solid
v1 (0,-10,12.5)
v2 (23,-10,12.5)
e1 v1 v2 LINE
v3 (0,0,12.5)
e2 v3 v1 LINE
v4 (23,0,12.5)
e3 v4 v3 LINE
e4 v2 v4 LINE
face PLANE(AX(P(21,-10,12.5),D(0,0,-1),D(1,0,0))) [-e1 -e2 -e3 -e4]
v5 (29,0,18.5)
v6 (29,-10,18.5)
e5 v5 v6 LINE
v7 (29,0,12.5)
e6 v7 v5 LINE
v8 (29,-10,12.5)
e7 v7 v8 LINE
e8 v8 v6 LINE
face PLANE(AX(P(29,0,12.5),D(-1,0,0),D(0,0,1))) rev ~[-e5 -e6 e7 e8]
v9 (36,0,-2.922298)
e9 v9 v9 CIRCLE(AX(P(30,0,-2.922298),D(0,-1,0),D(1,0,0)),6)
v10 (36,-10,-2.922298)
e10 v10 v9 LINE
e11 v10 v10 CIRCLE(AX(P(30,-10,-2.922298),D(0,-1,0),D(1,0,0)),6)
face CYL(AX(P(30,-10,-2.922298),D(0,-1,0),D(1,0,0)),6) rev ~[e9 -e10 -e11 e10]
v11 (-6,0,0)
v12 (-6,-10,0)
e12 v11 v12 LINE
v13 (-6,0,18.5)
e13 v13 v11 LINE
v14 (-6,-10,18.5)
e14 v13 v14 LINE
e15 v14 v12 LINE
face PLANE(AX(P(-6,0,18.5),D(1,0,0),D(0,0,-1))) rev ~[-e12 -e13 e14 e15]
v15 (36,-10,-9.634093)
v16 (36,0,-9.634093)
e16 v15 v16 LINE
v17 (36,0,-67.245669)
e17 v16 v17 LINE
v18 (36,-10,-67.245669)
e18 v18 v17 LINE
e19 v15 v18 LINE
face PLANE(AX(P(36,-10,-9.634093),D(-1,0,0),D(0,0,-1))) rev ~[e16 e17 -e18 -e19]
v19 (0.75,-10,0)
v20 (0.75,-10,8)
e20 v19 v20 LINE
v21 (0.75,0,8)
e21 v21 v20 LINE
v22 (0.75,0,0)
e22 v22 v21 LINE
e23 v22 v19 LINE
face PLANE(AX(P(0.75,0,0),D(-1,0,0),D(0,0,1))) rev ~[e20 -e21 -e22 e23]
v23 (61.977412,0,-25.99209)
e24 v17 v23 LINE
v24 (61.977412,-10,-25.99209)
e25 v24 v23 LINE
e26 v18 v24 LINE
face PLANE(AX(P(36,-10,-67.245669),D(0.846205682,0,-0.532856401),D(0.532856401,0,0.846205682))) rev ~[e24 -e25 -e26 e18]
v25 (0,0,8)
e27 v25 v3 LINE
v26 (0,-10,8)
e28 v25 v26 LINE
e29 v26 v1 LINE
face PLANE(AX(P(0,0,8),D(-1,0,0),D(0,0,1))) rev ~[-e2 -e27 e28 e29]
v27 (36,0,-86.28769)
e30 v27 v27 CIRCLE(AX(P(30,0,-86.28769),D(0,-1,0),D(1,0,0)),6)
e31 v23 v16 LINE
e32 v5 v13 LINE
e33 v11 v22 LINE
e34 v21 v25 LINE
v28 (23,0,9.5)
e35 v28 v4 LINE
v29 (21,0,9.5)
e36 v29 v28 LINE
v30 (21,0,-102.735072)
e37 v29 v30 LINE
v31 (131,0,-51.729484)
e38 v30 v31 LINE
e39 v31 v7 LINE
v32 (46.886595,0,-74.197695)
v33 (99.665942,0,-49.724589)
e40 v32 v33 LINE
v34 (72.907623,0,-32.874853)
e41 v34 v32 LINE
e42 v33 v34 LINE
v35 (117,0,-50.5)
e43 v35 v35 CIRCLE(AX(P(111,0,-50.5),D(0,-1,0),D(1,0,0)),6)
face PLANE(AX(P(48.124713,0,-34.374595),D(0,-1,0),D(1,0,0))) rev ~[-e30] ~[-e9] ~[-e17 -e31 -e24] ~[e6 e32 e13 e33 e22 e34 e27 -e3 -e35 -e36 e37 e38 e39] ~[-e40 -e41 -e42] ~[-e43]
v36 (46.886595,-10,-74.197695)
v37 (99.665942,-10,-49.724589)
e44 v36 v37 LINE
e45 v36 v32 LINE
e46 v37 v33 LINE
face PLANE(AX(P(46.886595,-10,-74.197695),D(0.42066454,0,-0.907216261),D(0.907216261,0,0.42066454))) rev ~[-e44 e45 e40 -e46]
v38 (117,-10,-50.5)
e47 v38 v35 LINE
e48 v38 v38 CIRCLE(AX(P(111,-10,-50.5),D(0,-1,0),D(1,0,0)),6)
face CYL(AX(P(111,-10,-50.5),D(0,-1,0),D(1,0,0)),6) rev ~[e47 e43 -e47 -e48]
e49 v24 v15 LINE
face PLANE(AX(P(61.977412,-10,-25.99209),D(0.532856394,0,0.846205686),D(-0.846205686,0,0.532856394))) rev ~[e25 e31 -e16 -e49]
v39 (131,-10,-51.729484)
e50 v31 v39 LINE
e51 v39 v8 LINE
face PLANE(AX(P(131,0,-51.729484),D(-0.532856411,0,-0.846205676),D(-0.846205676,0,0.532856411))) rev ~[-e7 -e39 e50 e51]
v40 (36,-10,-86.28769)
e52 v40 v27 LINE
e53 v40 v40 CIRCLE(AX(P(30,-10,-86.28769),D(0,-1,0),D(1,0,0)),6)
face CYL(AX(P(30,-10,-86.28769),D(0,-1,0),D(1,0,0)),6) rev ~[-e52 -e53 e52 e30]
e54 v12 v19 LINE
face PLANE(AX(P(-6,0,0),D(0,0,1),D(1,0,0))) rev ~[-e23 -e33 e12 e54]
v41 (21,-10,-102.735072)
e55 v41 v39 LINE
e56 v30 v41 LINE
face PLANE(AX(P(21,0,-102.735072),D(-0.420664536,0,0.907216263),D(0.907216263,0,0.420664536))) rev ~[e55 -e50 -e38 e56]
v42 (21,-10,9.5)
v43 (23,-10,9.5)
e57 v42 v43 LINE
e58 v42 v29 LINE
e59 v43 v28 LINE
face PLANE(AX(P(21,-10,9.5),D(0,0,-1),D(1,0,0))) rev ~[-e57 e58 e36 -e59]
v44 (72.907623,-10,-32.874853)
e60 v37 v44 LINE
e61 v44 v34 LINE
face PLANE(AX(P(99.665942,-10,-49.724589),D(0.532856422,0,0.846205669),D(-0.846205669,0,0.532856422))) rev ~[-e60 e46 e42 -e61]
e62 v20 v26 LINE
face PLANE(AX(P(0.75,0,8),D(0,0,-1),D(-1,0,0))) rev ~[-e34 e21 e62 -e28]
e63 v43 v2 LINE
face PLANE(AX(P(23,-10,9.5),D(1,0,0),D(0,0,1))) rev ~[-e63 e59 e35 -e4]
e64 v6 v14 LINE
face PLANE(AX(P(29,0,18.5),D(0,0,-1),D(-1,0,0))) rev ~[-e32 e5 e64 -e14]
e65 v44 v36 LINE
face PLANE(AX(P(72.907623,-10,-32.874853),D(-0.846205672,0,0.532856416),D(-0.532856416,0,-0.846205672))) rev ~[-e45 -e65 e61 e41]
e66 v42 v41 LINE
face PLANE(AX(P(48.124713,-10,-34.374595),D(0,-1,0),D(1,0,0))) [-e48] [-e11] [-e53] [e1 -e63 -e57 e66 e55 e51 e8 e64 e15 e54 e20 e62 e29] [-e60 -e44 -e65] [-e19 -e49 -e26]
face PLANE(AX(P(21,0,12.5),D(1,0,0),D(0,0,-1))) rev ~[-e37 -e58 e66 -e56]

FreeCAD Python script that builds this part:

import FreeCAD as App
import Part
import Sketcher

V = App.Vector
Q = App.Units.Quantity


def add_polygon(sketch, points):
    """Adds a closed chain of lines whose ends are joined by coincident constraints."""
    first, n = sketch.GeometryCount, len(points)
    for a, b in zip(points, points[1:] + points[:1]):
        sketch.addGeometry(Part.LineSegment(App.Vector(*a, 0), App.Vector(*b, 0)), False)
    for i in range(n):
        sketch.addConstraint(Sketcher.Constraint("Coincident", first + i, 2, first + (i + 1) % n, 1))

doc = App.newDocument("Part")
params = doc.addObject("Spreadsheet::Sheet", "Params")
for row, (alias, value) in enumerate([
    ("sketch1_width", "21 mm"),
    ("sketch1_width2", "35 mm"),
    ("sketch1_height", "8 mm"),
    ("sketch1_height2", "6 mm"),
    ("sketch1_height3", "4.5 mm"),
    ("pad1_length", "10 mm"),
    ("pocket1_length", "25 mm"),
    ("sketch3_diameter", "12 mm"),
    ("pocket2_length", "25 mm"),
    ("sketch4_width", "2 mm"),
    ("sketch4_height", "3 mm"),
    ("pocket3_length", "25 mm"),
], start=1):
    params.set(f"A{row}", alias)
    params.set(f"B{row}", "=" + value)
    params.setAlias(f"B{row}", alias)

body = doc.addObject("PartDesign::Body", "Body")

sketch1 = doc.addObject("Sketcher::SketchObject", "Sketch")
body.addObject(sketch1)
sketch1.AttachmentSupport = (doc.XZ_Plane, [""])
sketch1.MapMode = "FlatFace"
add_polygon(sketch1, [(-6, 0), (0.75, 0), (0.75, 8), (0, 8), (0, 12.5), (21, 12.5), (21, -102.735072), (131, -51.729484), (29, 12.5), (29, 18.5), (-6, 18.5)])
sketch1.addConstraint([
    Sketcher.Constraint("Horizontal", 0),
    Sketcher.Constraint("Vertical", 1),
    Sketcher.Constraint("Horizontal", 2),
    Sketcher.Constraint("Vertical", 3),
    Sketcher.Constraint("Horizontal", 4),
    Sketcher.Constraint("Vertical", 5),
    Sketcher.Constraint("Vertical", 8),
    Sketcher.Constraint("Horizontal", 9),
    Sketcher.Constraint("Vertical", 10),
    Sketcher.Constraint("PointOnObject", 0, 2, -1),
    Sketcher.Constraint("PointOnObject", 2, 2, -2),
    Sketcher.Constraint("Horizontal", 4, 2, 7, 2),
    Sketcher.Constraint("DistanceX", 4, 1, 4, 2, Q("21 mm")),
    Sketcher.Constraint("DistanceX", 9, 2, 9, 1, Q("35 mm")),
    Sketcher.Constraint("DistanceY", 1, 1, 1, 2, Q("8 mm")),
    Sketcher.Constraint("DistanceY", 8, 1, 8, 2, Q("6 mm")),
    Sketcher.Constraint("DistanceY", 3, 1, 3, 2, Q("4.5 mm")),
    Sketcher.Constraint("DistanceX", -1, 1, 6, 2, Q("131 mm")),
    Sketcher.Constraint("DistanceX", -1, 1, 7, 2, Q("29 mm")),
    Sketcher.Constraint("DistanceX", 0, 1, 0, 2, Q("6.75 mm")),
    Sketcher.Constraint("Distance", 6, Q("121.250031 mm")),
    Sketcher.Constraint("Distance", 7, Q("120.538071 mm")),
])
sketch1.setExpression("Constraints[23]", "Params.sketch1_width")
sketch1.setExpression("Constraints[24]", "Params.sketch1_width2")
sketch1.setExpression("Constraints[25]", "Params.sketch1_height")
sketch1.setExpression("Constraints[26]", "Params.sketch1_height2")
sketch1.setExpression("Constraints[27]", "Params.sketch1_height3")
pad1 = doc.addObject("PartDesign::Pad", "Pad")
body.addObject(pad1)
pad1.Profile = sketch1
pad1.setExpression("Length", "Params.pad1_length")

sketch2 = doc.addObject("Sketcher::SketchObject", "Sketch001")
body.addObject(sketch2)
sketch2.AttachmentSupport = (doc.XZ_Plane, [""])
sketch2.MapMode = "FlatFace"
sketch2.AttachmentOffset = App.Placement(V(0, 0, 10), App.Rotation())
add_polygon(sketch2, [(61.977412, -25.99209), (36, -9.634093), (36, -67.245669)])
add_polygon(sketch2, [(99.665942, -49.724589), (72.907623, -32.874853), (46.886595, -74.197695)])
sketch2.addConstraint([
    Sketcher.Constraint("Vertical", 1),
    Sketcher.Constraint("Perpendicular", 0, 2),
    Sketcher.Constraint("Perpendicular", 2, 3),
    Sketcher.Constraint("Perpendicular", 3, 4),
    Sketcher.Constraint("DistanceX", -1, 1, 0, 2, Q("36 mm")),
    Sketcher.Constraint("DistanceY", 5, 2, 2, 2, Q("23.732499 mm")),
    Sketcher.Constraint("Distance", 3, Q("31.621531 mm")),
    Sketcher.Constraint("Distance", 5, Q("58.17725 mm")),
    Sketcher.Constraint("DistanceY", 1, 2, 1, 1, Q("57.611576 mm")),
    Sketcher.Constraint("DistanceY", 1, 2, -1, 1, Q("67.245669 mm")),
    Sketcher.Constraint("DistanceY", 2, 2, -1, 1, Q("25.99209 mm")),
    Sketcher.Constraint("DistanceX", -1, 1, 5, 2, Q("99.665942 mm")),
])
pocket1 = doc.addObject("PartDesign::Pocket", "Pocket")
body.addObject(pocket1)
pocket1.Profile = sketch2
pocket1.setExpression("Length", "Params.pocket1_length")

sketch3 = doc.addObject("Sketcher::SketchObject", "Sketch002")
body.addObject(sketch3)
sketch3.AttachmentSupport = (doc.XZ_Plane, [""])
sketch3.MapMode = "FlatFace"
sketch3.AttachmentOffset = App.Placement(V(0, 0, 10), App.Rotation())
sketch3.addGeometry([
    Part.Circle(V(30, -2.922298, 0), V(0, 0, 1), 6),
    Part.Circle(V(111, -50.5, 0), V(0, 0, 1), 6),
    Part.Circle(V(30, -86.28769, 0), V(0, 0, 1), 6),
], False)
sketch3.addConstraint([
    Sketcher.Constraint("Equal", 0, 1),
    Sketcher.Constraint("Equal", 1, 2),
    Sketcher.Constraint("Vertical", 0, 3, 2, 3),
    Sketcher.Constraint("Diameter", 0, Q("12 mm")),
    Sketcher.Constraint("DistanceX", -1, 1, 0, 3, Q("30 mm")),
    Sketcher.Constraint("DistanceX", -1, 1, 1, 3, Q("111 mm")),
    Sketcher.Constraint("DistanceY", 1, 3, -1, 1, Q("50.5 mm")),
    Sketcher.Constraint("DistanceY", 0, 3, -1, 1, Q("2.922298 mm")),
    Sketcher.Constraint("DistanceY", 2, 3, -1, 1, Q("86.28769 mm")),
])
sketch3.setExpression("Constraints[3]", "Params.sketch3_diameter")
pocket2 = doc.addObject("PartDesign::Pocket", "Pocket001")
body.addObject(pocket2)
pocket2.Profile = sketch3
pocket2.setExpression("Length", "Params.pocket2_length")

sketch4 = doc.addObject("Sketcher::SketchObject", "Sketch003")
body.addObject(sketch4)
sketch4.AttachmentSupport = (doc.XZ_Plane, [""])
sketch4.MapMode = "FlatFace"
sketch4.AttachmentOffset = App.Placement(V(0, 0, 10), App.Rotation())
add_polygon(sketch4, [(21, 12.5), (21, 9.5), (23, 9.5), (23, 12.5)])
sketch4.addConstraint([
    Sketcher.Constraint("Vertical", 0),
    Sketcher.Constraint("Horizontal", 1),
    Sketcher.Constraint("Vertical", 2),
    Sketcher.Constraint("Horizontal", 3),
    Sketcher.Constraint("DistanceX", 1, 1, 1, 2, Q("2 mm")),
    Sketcher.Constraint("DistanceY", 0, 2, 0, 1, Q("3 mm")),
    Sketcher.Constraint("DistanceX", -1, 1, 0, 2, Q("21 mm")),
    Sketcher.Constraint("DistanceY", -1, 1, 0, 2, Q("9.5 mm")),
])
sketch4.setExpression("Constraints[8]", "Params.sketch4_width")
sketch4.setExpression("Constraints[9]", "Params.sketch4_height")
pocket3 = doc.addObject("PartDesign::Pocket", "Pocket002")
body.addObject(pocket3)
pocket3.Profile = sketch4
pocket3.setExpression("Length", "Params.pocket3_length")

doc.recompute()
